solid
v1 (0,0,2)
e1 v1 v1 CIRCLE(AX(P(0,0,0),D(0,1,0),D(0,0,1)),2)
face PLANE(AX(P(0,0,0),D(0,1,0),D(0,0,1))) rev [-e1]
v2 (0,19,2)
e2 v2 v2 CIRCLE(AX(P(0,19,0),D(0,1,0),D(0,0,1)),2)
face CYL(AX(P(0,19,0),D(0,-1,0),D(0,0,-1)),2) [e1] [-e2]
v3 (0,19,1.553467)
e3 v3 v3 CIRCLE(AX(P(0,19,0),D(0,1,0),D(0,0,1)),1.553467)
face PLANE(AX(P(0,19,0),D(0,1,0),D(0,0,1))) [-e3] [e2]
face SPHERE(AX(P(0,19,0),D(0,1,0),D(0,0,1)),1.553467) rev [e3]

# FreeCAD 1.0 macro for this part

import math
import FreeCAD as App
import Part
import Sketcher

V = App.Vector

doc = App.newDocument("Part")
body = doc.addObject("PartDesign::Body", "Body")

# Sketch on XZ plane
sketch1 = body.newObject("Sketcher::SketchObject", "Sketch")
sketch1.AttachmentSupport = (doc.getObject("XZ_Plane"), [""])
sketch1.MapMode = "FlatFace"
sketch1.addGeometry(Part.Circle(V(0, 0, 0), V(0, 0, 1), 2), False)
sketch1.addConstraint(Sketcher.Constraint("Coincident", 0, 3, -1, 1))
sketch1.addConstraint(Sketcher.Constraint("Diameter", 0, 4.0))
pad1 = body.newObject("PartDesign::Pad", "Pad")
pad1.Profile = sketch1
pad1.Length = 19
pad1.Reversed = True

# Sketch on XZ plane
sketch2 = body.newObject("Sketcher::SketchObject", "Sketch001")
sketch2.AttachmentSupport = (doc.getObject("XZ_Plane"), [""])
sketch2.MapMode = "FlatFace"
sketch2.AttachmentOffset = App.Placement(V(0, 0, -19), App.Rotation())
sketch2.addGeometry(Part.LineSegment(V(0, 1.6, 0), V(0, -1.6, 0)), False)
sketch2.addGeometry(Part.ArcOfCircle(Part.Circle(V(0, 0, 0), V(0, 0, 1), 1.6), math.radians(90), math.radians(270)), False)
sketch2.addConstraint(Sketcher.Constraint("Coincident", 0, 1, 1, 1))
sketch2.addConstraint(Sketcher.Constraint("Coincident", 1, 2, 0, 2))
sketch2.addConstraint(Sketcher.Constraint("Vertical", 0))
sketch2.addConstraint(Sketcher.Constraint("Coincident", 1, 3, -1, 1))
sketch2.addConstraint(Sketcher.Constraint("PointOnObject", 0, 1, -2))
sketch2.addConstraint(Sketcher.Constraint("Radius", 1, 1.553467))
groove = body.newObject("PartDesign::Groove", "Groove")
groove.Profile = sketch2
groove.ReferenceAxis = (sketch2, ["V_Axis"])
groove.Angle = 360

doc.recompute()
